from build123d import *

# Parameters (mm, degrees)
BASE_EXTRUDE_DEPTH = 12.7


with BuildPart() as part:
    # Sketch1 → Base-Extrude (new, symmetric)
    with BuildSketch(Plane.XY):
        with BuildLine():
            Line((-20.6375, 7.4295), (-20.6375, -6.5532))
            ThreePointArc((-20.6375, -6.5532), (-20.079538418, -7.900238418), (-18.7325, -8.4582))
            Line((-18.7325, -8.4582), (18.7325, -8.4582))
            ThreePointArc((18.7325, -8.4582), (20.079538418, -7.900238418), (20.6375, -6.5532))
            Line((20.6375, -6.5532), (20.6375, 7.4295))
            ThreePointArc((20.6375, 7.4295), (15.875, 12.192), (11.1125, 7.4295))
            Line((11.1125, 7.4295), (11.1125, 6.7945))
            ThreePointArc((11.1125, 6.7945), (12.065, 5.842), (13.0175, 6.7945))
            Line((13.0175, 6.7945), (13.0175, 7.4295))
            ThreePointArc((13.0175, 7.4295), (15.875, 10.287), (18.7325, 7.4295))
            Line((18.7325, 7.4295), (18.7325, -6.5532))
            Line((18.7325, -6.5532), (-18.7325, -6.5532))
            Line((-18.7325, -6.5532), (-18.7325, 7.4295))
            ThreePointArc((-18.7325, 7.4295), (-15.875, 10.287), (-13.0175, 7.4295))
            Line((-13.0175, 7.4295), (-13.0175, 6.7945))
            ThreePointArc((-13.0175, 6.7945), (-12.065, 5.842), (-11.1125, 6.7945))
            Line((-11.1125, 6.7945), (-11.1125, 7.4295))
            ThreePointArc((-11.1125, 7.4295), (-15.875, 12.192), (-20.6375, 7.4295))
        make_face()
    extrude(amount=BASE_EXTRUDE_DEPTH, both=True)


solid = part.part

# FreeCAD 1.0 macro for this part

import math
import FreeCAD as App
import Part
import Sketcher
Q = App.Units.Quantity

doc = App.newDocument("Part")
body = doc.addObject("PartDesign::Body", "Body")

# Sketch on XY plane
sketch1 = body.newObject("Sketcher::SketchObject", "Sketch")
sketch1.AttachmentSupport = (doc.getObject("XY_Plane"), [""])
sketch1.MapMode = "FlatFace"
sketch1.addGeometry([
    Part.LineSegment(App.Vector(-20.6375, 7.4295, 0), App.Vector(-20.6375, -6.5532, 0)),  # 0
    Part.ArcOfCircle(Part.Circle(App.Vector(-18.7325, -6.5532, 0), App.Vector(0, 0, 1), 1.905), math.radians(-180), math.radians(-90)),  # 1
    Part.LineSegment(App.Vector(-18.7325, -8.4582, 0), App.Vector(18.7325, -8.4582, 0)),  # 2
    Part.ArcOfCircle(Part.Circle(App.Vector(18.7325, -6.5532, 0), App.Vector(0, 0, 1), 1.905), math.radians(-90), math.radians(0)),  # 3
    Part.LineSegment(App.Vector(20.6375, -6.5532, 0), App.Vector(20.6375, 7.4295, 0)),  # 4
    Part.ArcOfCircle(Part.Circle(App.Vector(15.875, 7.4295, 0), App.Vector(0, 0, 1), 4.7625), math.radians(0), math.radians(180)),  # 5
    Part.LineSegment(App.Vector(11.1125, 7.4295, 0), App.Vector(11.1125, 6.7945, 0)),  # 6
    Part.ArcOfCircle(Part.Circle(App.Vector(12.065, 6.7945, 0), App.Vector(0, 0, 1), 0.9525), math.radians(180), math.radians(360)),  # 7
    Part.LineSegment(App.Vector(13.0175, 6.7945, 0), App.Vector(13.0175, 7.4295, 0)),  # 8
    Part.ArcOfCircle(Part.Circle(App.Vector(15.875, 7.4295, 0), App.Vector(0, 0, 1), 2.8575), math.radians(0), math.radians(180)),  # 9
    Part.LineSegment(App.Vector(18.7325, 7.4295, 0), App.Vector(18.7325, -6.5532, 0)),  # 10
    Part.LineSegment(App.Vector(18.7325, -6.5532, 0), App.Vector(-18.7325, -6.5532, 0)),  # 11
    Part.LineSegment(App.Vector(-18.7325, -6.5532, 0), App.Vector(-18.7325, 7.4295, 0)),  # 12
    Part.ArcOfCircle(Part.Circle(App.Vector(-15.875, 7.4295, 0), App.Vector(0, 0, 1), 2.8575), math.radians(0), math.radians(180)),  # 13
    Part.LineSegment(App.Vector(-13.0175, 7.4295, 0), App.Vector(-13.0175, 6.7945, 0)),  # 14
    Part.ArcOfCircle(Part.Circle(App.Vector(-12.065, 6.7945, 0), App.Vector(0, 0, 1), 0.9525), math.radians(180), math.radians(360)),  # 15
    Part.LineSegment(App.Vector(-11.1125, 6.7945, 0), App.Vector(-11.1125, 7.4295, 0)),  # 16
    Part.ArcOfCircle(Part.Circle(App.Vector(-15.875, 7.4295, 0), App.Vector(0, 0, 1), 4.7625), math.radians(0), math.radians(180)),  # 17
], False)
sketch1.addConstraint([
    Sketcher.Constraint("Tangent", 0, 2, 1, 1),
    Sketcher.Constraint("Tangent", 1, 2, 2, 1),
    Sketcher.Constraint("Tangent", 2, 2, 3, 1),
    Sketcher.Constraint("Tangent", 3, 2, 4, 1),
    Sketcher.Constraint("Tangent", 4, 2, 5, 1),
    Sketcher.Constraint("Tangent", 5, 2, 6, 1),
    Sketcher.Constraint("Tangent", 6, 2, 7, 1),
    Sketcher.Constraint("Tangent", 7, 2, 8, 1),
    Sketcher.Constraint("Tangent", 8, 2, 9, 2),
    Sketcher.Constraint("Tangent", 9, 1, 10, 1),
    Sketcher.Constraint("Coincident", 10, 2, 11, 1),
    Sketcher.Constraint("Coincident", 11, 2, 12, 1),
    Sketcher.Constraint("Tangent", 12, 2, 13, 2),
    Sketcher.Constraint("Tangent", 13, 1, 14, 1),
    Sketcher.Constraint("Tangent", 14, 2, 15, 1),
    Sketcher.Constraint("Tangent", 15, 2, 16, 1),
    Sketcher.Constraint("Tangent", 16, 2, 17, 1),
    Sketcher.Constraint("Tangent", 17, 2, 0, 1),
    Sketcher.Constraint("Vertical", 0),
    Sketcher.Constraint("Horizontal", 2),
    Sketcher.Constraint("Vertical", 4),
    Sketcher.Constraint("Vertical", 6),
    Sketcher.Constraint("Vertical", 8),
    Sketcher.Constraint("Vertical", 10),
    Sketcher.Constraint("Horizontal", 11),
    Sketcher.Constraint("Vertical", 12),
    Sketcher.Constraint("Vertical", 14),
    Sketcher.Constraint("Vertical", 16),
    Sketcher.Constraint("Coincident", 9, 3, 5, 3),
    Sketcher.Constraint("Coincident", 17, 3, 13, 3),
    Sketcher.Constraint("Coincident", 10, 2, 3, 3),
    Sketcher.Constraint("Coincident", 11, 2, 1, 3),
    Sketcher.Constraint("Equal", 9, 13),
    Sketcher.Constraint("Symmetric", 5, 3, 13, 3, -2),
    Sketcher.Constraint("Horizontal", 7, 3, 15, 3),
    Sketcher.Constraint("Radius", 1, Q("0.075 in")),
    Sketcher.Constraint("Radius", 5, Q("0.1875 in")),
    Sketcher.Constraint("DistanceX", 13, 3, 7, 3, Q("1.1 in")),
    Sketcher.Constraint("DistanceY", 6, 2, 6, 1, Q("0.025 in")),
    Sketcher.Constraint("DistanceY", 0, 2, 0, 1, Q("0.5505 in")),
    Sketcher.Constraint("DistanceY", 1, 3, -1, 1, Q("0.258 in")),
])
pad1 = body.newObject("PartDesign::Pad", "Pad")
pad1.Profile = sketch1
pad1.Length = Q("1 in")
pad1.Midplane = True

doc.recompute()
